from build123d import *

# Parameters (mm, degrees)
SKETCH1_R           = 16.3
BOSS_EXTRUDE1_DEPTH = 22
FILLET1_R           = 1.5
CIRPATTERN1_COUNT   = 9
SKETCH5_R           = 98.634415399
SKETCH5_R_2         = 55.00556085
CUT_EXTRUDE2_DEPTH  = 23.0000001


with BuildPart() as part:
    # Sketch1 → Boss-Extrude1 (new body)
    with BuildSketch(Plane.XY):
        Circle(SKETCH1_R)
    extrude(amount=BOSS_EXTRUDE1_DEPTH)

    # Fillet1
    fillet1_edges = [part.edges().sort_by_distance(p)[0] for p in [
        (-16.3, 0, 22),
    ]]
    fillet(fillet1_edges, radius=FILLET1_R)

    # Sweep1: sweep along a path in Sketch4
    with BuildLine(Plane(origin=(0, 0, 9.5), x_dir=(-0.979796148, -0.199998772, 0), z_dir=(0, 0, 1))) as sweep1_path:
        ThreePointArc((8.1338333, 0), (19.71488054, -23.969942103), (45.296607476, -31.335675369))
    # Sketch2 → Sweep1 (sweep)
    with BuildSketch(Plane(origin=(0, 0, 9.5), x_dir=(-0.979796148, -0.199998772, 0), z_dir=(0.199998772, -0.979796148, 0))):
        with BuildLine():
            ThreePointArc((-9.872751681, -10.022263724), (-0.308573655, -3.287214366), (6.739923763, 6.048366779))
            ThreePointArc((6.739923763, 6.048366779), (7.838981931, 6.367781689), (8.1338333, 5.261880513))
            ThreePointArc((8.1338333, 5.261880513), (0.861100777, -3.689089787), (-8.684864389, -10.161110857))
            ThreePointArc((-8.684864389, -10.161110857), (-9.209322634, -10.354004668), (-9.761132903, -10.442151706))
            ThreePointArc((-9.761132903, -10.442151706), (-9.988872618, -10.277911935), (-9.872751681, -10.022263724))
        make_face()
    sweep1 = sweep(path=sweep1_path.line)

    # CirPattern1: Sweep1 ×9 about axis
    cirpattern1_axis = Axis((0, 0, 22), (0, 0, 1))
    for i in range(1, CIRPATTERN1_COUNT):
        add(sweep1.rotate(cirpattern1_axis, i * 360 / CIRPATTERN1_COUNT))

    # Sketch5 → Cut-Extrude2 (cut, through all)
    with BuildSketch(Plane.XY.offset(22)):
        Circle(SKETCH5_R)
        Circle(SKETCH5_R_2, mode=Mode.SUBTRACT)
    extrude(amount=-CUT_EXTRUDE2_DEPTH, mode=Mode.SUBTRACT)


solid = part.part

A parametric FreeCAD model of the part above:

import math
import FreeCAD as App
import Part
import Sketcher

V = App.Vector
Q = App.Units.Quantity


def edges_at(feature, points):
    """Names of the edges that pass closest to the given points."""
    edges = feature.Shape.Edges
    near = lambda p: min(range(len(edges)), key=lambda i: edges[i].distToShape(Part.Vertex(*p))[0])
    return sorted({f"Edge{near(p) + 1}" for p in points})

doc = App.newDocument("Part")
body = doc.addObject("PartDesign::Body", "Body")

sketch1 = body.newObject("Sketcher::SketchObject", "Sketch")
sketch1.AttachmentSupport = (doc.getObject("XY_Plane"), [""])
sketch1.MapMode = "FlatFace"
sketch1.addGeometry(Part.Circle(V(0, 0, 0), V(0, 0, 1), 16), False)
sketch1.addConstraint(Sketcher.Constraint("Coincident", 0, 3, -1, 1))
sketch1.addConstraint(Sketcher.Constraint("Diameter", 0, Q("32.6 mm")))
pad1 = body.newObject("PartDesign::Pad", "Pad")
pad1.Profile = sketch1
pad1.Length = 22
doc.recompute()

fillet = body.newObject("PartDesign::Fillet", "Fillet")
fillet.Base = (pad1, edges_at(pad1, [(-16.3, 0, 22)]))
fillet.Radius = 1.5

sketch2 = body.newObject("Sketcher::SketchObject", "Sketch001")
sketch2.Placement = App.Placement(V(0, 0, 9.5), App.Rotation(V(-0.979796148, -0.199998772, 0), V(0, 0, -1), V(0.199998772, -0.979796148, 0), "ZXY"))
sketch2.addGeometry(Part.ArcOfCircle(Part.Circle(V(-26.60303, 23.894125, 0), V(0, 0, 1), 37.818298), math.radians(-63.743796), math.radians(-28.156504)), False)
sketch2.addGeometry(Part.ArcOfCircle(Part.Circle(V(-9.774726, -10.220985, 0), V(0, 0, 1), 0.221584), math.radians(116.256204), math.radians(273.517091)), False)
sketch2.addGeometry(Part.ArcOfCircle(Part.Circle(V(-9.938081, -7.563165, 0), V(0, 0, 1), 2.884419), math.radians(-86.48291), math.radians(-64.247915)), False)
sketch2.addGeometry(Part.ArcOfCircle(Part.Circle(V(-25.866943, 25.457713, 0), V(0, 0, 1), 39.546485), math.radians(-64.247915), math.radians(-30.709529)), False)
sketch2.addGeometry(Part.ArcOfCircle(Part.Circle(V(7.445641, 5.670654, 0), V(0, 0, 1), 0.80044), math.radians(-30.709529), math.radians(151.843496)), False)
sketch2.addConstraint(Sketcher.Constraint("Coincident", 0, 1, 1, 1))
sketch2.addConstraint(Sketcher.Constraint("Coincident", 1, 2, 2, 1))
sketch2.addConstraint(Sketcher.Constraint("Coincident", 2, 2, 3, 1))
sketch2.addConstraint(Sketcher.Constraint("Coincident", 3, 2, 4, 1))
sketch2.addConstraint(Sketcher.Constraint("Coincident", 4, 2, 0, 2))
sketch2.addConstraint(Sketcher.Constraint("Radius", 2, Q("2.884419 mm")))
sketch2.addConstraint(Sketcher.Constraint("Radius", 4, Q("0.80044 mm")))
sketch2.addConstraint(Sketcher.Constraint("Radius", 0, Q("37.818298 mm")))
sketch2.addConstraint(Sketcher.Constraint("Radius", 1, Q("0.221584 mm")))
sketch2.addConstraint(Sketcher.Constraint("Radius", 3, Q("39.546485 mm")))
sketch2.addConstraint(Sketcher.Constraint("DistanceY", 1, 3, 3, 3, Q("35.678699 mm")))
sketch2.addConstraint(Sketcher.Constraint("DistanceY", 0, 1, 2, 3, Q("2.459099 mm")))
sketch2.addConstraint(Sketcher.Constraint("DistanceX", 0, 3, -1, 1, Q("26.60303 mm")))
sketch2.addConstraint(Sketcher.Constraint("DistanceX", 2, 3, -1, 1, Q("9.938081 mm")))
sketch2.addConstraint(Sketcher.Constraint("DistanceX", -1, 1, 4, 3, Q("7.445641 mm")))
sketch2.addConstraint(Sketcher.Constraint("DistanceY", 1, 2, -1, 1, Q("10.442152 mm")))
sketch2.addConstraint(Sketcher.Constraint("DistanceY", 2, 2, -1, 1, Q("10.161111 mm")))
sketch2.addConstraint(Sketcher.Constraint("DistanceY", -1, 1, 3, 2, Q("5.261881 mm")))
sketch2.addConstraint(Sketcher.Constraint("DistanceX", 0, 1, 1, 2, Q("0.111619 mm")))
sketch2.addConstraint(Sketcher.Constraint("DistanceX", 4, 2, 3, 2, Q("1.39391 mm")))

sketch3 = body.newObject("Sketcher::SketchObject", "Sketch002")
sketch3.AttachmentSupport = (doc.getObject("XY_Plane"), [""])
sketch3.MapMode = "FlatFace"
sketch3.AttachmentOffset = App.Placement(V(0, 0, 9.5), App.Rotation())
sketch3.addGeometry(Part.ArcOfCircle(Part.Circle(V(-40, -9, 0), V(0, 0, 1), 33), math.radians(13), math.radians(110)), False)
sketch3.addConstraint(Sketcher.Constraint("Radius", 0, Q("32.629307 mm")))
sketch3.addConstraint(Sketcher.Constraint("DistanceX", 0, 1, -1, 1, Q("7.969499 mm")))
sketch3.addConstraint(Sketcher.Constraint("DistanceX", 0, 2, -1, 1, Q("50.648538 mm")))
sketch3.addConstraint(Sketcher.Constraint("DistanceY", -1, 1, 0, 2, Q("21.643308 mm")))
sketch3.addConstraint(Sketcher.Constraint("DistanceX", 0, 3, 0, 1, Q("31.760768 mm")))
doc.recompute()

additivepipe = body.newObject("PartDesign::AdditivePipe", "AdditivePipe")
additivepipe.Profile = sketch2
additivepipe.Spine = (sketch3, ["Edge1"])
doc.recompute()

polarpattern = body.newObject("PartDesign::PolarPattern", "PolarPattern")
polarpattern.Originals = [additivepipe]
polarpattern.Axis = (doc.getObject("Z_Axis"), [""])
polarpattern.Angle = 360
polarpattern.Occurrences = 9
body.Tip = polarpattern

sketch4 = body.newObject("Sketcher::SketchObject", "Sketch003")
sketch4.AttachmentSupport = (doc.getObject("XY_Plane"), [""])
sketch4.MapMode = "FlatFace"
sketch4.AttachmentOffset = App.Placement(V(0, 0, 22), App.Rotation())
sketch4.addGeometry(Part.Circle(V(0, 0, 0), V(0, 0, 1), 99), False)
sketch4.addGeometry(Part.Circle(V(0, 0, 0), V(0, 0, 1), 55), False)
sketch4.addConstraint(Sketcher.Constraint("Coincident", 0, 3, -1, 1))
sketch4.addConstraint(Sketcher.Constraint("Coincident", 1, 3, -1, 1))
sketch4.addConstraint(Sketcher.Constraint("Diameter", 0, Q("197.268831 mm")))
sketch4.addConstraint(Sketcher.Constraint("Diameter", 1, Q("110.011122 mm")))
pocket1 = body.newObject("PartDesign::Pocket", "Pocket")
pocket1.Profile = sketch4
pocket1.Type = "ThroughAll"

doc.recompute()
